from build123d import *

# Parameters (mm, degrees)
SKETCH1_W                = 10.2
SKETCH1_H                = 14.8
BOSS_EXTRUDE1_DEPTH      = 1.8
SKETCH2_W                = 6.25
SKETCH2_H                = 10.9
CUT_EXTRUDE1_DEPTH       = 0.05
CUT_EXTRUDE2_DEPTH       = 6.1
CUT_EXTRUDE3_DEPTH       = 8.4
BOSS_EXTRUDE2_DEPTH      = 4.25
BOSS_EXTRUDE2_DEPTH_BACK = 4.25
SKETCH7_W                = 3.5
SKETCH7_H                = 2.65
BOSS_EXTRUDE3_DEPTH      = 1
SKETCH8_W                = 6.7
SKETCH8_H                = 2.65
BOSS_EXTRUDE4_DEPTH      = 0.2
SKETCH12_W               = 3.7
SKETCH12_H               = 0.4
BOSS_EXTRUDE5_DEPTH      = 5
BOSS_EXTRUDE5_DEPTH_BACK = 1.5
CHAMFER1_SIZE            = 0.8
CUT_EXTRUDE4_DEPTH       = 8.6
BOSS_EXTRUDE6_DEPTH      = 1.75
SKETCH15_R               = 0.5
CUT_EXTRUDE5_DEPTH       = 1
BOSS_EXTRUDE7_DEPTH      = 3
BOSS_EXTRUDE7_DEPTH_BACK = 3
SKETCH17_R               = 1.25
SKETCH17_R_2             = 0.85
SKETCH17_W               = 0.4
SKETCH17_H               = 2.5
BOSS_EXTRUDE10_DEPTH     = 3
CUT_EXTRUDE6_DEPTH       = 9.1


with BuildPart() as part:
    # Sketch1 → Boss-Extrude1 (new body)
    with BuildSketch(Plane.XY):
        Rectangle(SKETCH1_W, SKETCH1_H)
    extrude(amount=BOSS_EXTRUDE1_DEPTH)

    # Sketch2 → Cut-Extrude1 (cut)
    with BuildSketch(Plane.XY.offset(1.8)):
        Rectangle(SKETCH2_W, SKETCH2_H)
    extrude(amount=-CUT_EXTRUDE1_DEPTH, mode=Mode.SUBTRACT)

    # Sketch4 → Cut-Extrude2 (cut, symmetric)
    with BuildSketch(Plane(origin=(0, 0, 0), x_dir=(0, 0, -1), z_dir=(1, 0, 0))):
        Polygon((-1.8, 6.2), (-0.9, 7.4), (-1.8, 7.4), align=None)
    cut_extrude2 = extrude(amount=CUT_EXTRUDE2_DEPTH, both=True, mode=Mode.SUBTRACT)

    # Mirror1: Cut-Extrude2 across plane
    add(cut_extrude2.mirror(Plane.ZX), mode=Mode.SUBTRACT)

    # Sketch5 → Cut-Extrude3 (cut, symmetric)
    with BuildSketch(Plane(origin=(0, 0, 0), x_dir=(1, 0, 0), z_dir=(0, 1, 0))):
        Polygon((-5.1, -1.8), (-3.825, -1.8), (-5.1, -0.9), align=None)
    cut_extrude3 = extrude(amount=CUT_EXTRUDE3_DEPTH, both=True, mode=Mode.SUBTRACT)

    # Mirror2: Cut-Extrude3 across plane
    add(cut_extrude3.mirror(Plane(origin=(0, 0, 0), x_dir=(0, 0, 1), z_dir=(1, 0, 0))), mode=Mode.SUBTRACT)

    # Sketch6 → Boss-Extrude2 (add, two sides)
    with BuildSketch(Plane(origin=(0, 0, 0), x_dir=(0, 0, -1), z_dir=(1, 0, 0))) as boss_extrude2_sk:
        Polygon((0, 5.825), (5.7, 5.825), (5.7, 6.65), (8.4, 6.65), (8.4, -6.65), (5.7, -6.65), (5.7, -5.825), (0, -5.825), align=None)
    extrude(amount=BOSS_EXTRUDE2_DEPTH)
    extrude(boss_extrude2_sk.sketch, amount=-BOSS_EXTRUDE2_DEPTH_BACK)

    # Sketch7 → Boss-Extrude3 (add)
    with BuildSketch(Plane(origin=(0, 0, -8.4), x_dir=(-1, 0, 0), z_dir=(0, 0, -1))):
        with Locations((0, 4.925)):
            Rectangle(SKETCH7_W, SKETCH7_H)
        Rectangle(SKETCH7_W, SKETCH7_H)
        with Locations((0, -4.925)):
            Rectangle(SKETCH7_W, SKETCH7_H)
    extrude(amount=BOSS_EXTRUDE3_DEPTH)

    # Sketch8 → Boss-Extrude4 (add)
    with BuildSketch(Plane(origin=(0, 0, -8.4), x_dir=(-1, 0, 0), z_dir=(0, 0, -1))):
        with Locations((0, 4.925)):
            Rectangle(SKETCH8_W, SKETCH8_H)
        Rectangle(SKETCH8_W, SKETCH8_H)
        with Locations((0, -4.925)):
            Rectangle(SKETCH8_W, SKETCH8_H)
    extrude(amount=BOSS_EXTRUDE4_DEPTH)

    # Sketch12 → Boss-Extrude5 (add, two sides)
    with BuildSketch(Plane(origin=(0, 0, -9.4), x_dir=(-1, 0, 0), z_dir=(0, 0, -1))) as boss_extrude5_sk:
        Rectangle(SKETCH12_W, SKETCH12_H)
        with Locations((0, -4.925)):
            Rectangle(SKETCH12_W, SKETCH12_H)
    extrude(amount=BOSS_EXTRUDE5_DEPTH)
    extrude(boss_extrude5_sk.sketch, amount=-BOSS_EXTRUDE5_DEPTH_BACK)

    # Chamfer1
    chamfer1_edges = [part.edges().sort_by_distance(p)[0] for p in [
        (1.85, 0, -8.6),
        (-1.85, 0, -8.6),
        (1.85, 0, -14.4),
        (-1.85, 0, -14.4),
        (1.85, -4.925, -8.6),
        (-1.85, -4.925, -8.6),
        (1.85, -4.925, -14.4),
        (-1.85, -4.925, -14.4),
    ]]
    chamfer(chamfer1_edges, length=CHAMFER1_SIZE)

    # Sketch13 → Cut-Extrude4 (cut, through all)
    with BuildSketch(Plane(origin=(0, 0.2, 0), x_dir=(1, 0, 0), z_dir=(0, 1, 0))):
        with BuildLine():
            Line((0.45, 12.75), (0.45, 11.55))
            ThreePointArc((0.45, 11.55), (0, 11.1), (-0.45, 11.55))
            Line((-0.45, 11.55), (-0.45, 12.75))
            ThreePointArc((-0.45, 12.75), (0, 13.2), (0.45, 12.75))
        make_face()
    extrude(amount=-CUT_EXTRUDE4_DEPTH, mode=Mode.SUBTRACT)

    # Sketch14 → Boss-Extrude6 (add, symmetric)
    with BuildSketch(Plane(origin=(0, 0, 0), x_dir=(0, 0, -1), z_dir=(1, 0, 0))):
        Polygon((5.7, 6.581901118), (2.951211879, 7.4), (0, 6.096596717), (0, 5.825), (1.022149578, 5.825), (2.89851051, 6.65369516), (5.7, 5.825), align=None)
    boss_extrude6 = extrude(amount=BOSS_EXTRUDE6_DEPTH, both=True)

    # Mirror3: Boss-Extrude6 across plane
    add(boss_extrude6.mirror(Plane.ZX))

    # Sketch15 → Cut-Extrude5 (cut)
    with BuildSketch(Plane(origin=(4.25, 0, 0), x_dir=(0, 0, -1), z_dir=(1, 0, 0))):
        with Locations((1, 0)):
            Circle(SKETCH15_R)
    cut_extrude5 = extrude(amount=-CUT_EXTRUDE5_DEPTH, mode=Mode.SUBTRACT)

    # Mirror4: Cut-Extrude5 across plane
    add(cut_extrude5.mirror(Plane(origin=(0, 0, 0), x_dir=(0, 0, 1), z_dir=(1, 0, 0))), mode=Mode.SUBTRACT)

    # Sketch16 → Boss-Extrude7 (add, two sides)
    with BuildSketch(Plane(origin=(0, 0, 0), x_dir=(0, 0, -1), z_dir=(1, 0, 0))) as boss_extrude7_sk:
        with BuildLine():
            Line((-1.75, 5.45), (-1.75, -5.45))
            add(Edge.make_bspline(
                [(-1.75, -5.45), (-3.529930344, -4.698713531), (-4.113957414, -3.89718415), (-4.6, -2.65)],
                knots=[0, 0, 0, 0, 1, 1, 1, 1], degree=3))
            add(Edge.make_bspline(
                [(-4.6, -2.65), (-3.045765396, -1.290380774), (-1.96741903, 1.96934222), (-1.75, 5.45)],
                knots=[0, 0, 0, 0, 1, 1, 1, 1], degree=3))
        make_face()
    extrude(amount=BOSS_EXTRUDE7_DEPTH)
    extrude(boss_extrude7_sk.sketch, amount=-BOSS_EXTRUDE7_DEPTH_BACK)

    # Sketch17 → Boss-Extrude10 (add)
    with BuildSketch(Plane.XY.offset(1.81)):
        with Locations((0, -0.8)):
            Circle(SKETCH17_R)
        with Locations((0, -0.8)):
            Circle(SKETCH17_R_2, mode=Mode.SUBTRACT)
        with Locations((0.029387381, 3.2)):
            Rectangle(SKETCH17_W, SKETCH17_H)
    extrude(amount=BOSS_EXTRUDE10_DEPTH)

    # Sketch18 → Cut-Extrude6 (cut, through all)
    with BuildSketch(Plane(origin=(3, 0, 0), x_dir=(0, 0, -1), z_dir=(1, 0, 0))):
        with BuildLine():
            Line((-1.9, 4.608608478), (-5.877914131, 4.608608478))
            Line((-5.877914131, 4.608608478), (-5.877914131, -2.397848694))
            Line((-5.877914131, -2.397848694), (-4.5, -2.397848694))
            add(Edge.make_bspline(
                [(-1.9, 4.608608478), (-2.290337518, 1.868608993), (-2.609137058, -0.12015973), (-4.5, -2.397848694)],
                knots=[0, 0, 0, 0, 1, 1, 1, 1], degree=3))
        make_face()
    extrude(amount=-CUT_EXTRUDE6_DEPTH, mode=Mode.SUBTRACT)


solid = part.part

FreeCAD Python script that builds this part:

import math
import FreeCAD as App
import Part
import Sketcher
from FreeCAD import Vector
Q = App.Units.Quantity


def edges_at(feature, points):
    """Names of the edges that pass closest to the given points."""
    edges = feature.Shape.Edges
    near = lambda p: min(range(len(edges)), key=lambda i: edges[i].distToShape(Part.Vertex(*p))[0])
    return sorted({f"Edge{near(p) + 1}" for p in points})

doc = App.newDocument("Part")
body = doc.addObject("PartDesign::Body", "Body")

# Sketch on XY plane
sketch1 = body.newObject("Sketcher::SketchObject", "Sketch")
sketch1.AttachmentSupport = (doc.getObject("XY_Plane"), [""])
sketch1.MapMode = "FlatFace"
sketch1.addGeometry([
    Part.LineSegment(Vector(-5.1, 7.4, 0), Vector(-5.1, -7.4, 0)),
    Part.LineSegment(Vector(-5.1, -7.4, 0), Vector(5.1, -7.4, 0)),
    Part.LineSegment(Vector(5.1, -7.4, 0), Vector(5.1, 7.4, 0)),
    Part.LineSegment(Vector(5.1, 7.4, 0), Vector(-5.1, 7.4, 0)),
], False)
sketch1.addConstraint([
    Sketcher.Constraint("Coincident", 0, 2, 1, 1),
    Sketcher.Constraint("Coincident", 1, 2, 2, 1),
    Sketcher.Constraint("Coincident", 2, 2, 3, 1),
    Sketcher.Constraint("Coincident", 3, 2, 0, 1),
    Sketcher.Constraint("Vertical", 0),
    Sketcher.Constraint("Horizontal", 1),
    Sketcher.Constraint("Vertical", 2),
    Sketcher.Constraint("Horizontal", 3),
    Sketcher.Constraint("Symmetric", 0, 2, 2, 2, -1, 1),
    Sketcher.Constraint("DistanceX", 1, 1, 1, 2, Q("10.2 mm")),
    Sketcher.Constraint("DistanceY", 0, 2, 0, 1, Q("14.8 mm")),
])
pad1 = body.newObject("PartDesign::Pad", "Pad")
pad1.Profile = sketch1
pad1.Length = 1.8

# Sketch on XY plane
sketch2 = body.newObject("Sketcher::SketchObject", "Sketch001")
sketch2.AttachmentSupport = (doc.getObject("XY_Plane"), [""])
sketch2.MapMode = "FlatFace"
sketch2.AttachmentOffset = App.Placement(Vector(0, 0, 1.8), App.Rotation())
sketch2.addGeometry([
    Part.LineSegment(Vector(-3.125, 5.45, 0), Vector(-3.125, -5.45, 0)),
    Part.LineSegment(Vector(-3.125, -5.45, 0), Vector(3.125, -5.45, 0)),
    Part.LineSegment(Vector(3.125, -5.45, 0), Vector(3.125, 5.45, 0)),
    Part.LineSegment(Vector(3.125, 5.45, 0), Vector(-3.125, 5.45, 0)),
], False)
sketch2.addConstraint([
    Sketcher.Constraint("Coincident", 0, 2, 1, 1),
    Sketcher.Constraint("Coincident", 1, 2, 2, 1),
    Sketcher.Constraint("Coincident", 2, 2, 3, 1),
    Sketcher.Constraint("Coincident", 3, 2, 0, 1),
    Sketcher.Constraint("Vertical", 0),
    Sketcher.Constraint("Horizontal", 1),
    Sketcher.Constraint("Vertical", 2),
    Sketcher.Constraint("Horizontal", 3),
    Sketcher.Constraint("Symmetric", 0, 2, 2, 2, -1, 1),
    Sketcher.Constraint("DistanceY", 0, 2, 0, 1, Q("10.9 mm")),
    Sketcher.Constraint("DistanceX", 1, 1, 1, 2, Q("6.25 mm")),
])
pocket1 = body.newObject("PartDesign::Pocket", "Pocket")
pocket1.Profile = sketch2
pocket1.Length = 0.05

# Sketch on YZ plane
sketch3 = body.newObject("Sketcher::SketchObject", "Sketch002")
sketch3.AttachmentSupport = (doc.getObject("YZ_Plane"), [""])
sketch3.MapMode = "FlatFace"
sketch3.addGeometry([
    Part.LineSegment(Vector(6.2, 1.8, 0), Vector(7.4, 0.9, 0)),
    Part.LineSegment(Vector(7.4, 0.9, 0), Vector(7.4, 1.8, 0)),
    Part.LineSegment(Vector(7.4, 1.8, 0), Vector(6.2, 1.8, 0)),
], False)
sketch3.addConstraint([
    Sketcher.Constraint("Coincident", 0, 2, 1, 1),
    Sketcher.Constraint("Coincident", 1, 2, 2, 1),
    Sketcher.Constraint("Coincident", 2, 2, 0, 1),
    Sketcher.Constraint("Vertical", 1),
    Sketcher.Constraint("Horizontal", 2),
    Sketcher.Constraint("DistanceX", 2, 2, 2, 1, Q("1.2 mm")),
    Sketcher.Constraint("DistanceY", 1, 1, 1, 2, Q("0.9 mm")),
    Sketcher.Constraint("DistanceX", -1, 1, 0, 2, Q("7.4 mm")),
    Sketcher.Constraint("DistanceY", -1, 1, 0, 2, Q("0.9 mm")),
])
pocket2 = body.newObject("PartDesign::Pocket", "Pocket001")
pocket2.Profile = sketch3
pocket2.Length = 12.2
pocket2.Midplane = True
doc.recompute()

mirrored = body.newObject("PartDesign::Mirrored", "Mirrored")
mirrored.Originals = [pocket2]
mirrored.MirrorPlane = (doc.getObject("XZ_Plane"), [""])
body.Tip = mirrored

# Sketch on XZ plane
sketch4 = body.newObject("Sketcher::SketchObject", "Sketch003")
sketch4.AttachmentSupport = (doc.getObject("XZ_Plane"), [""])
sketch4.MapMode = "FlatFace"
sketch4.addGeometry([
    Part.LineSegment(Vector(-5.1, 1.8, 0), Vector(-3.825, 1.8, 0)),
    Part.LineSegment(Vector(-3.825, 1.8, 0), Vector(-5.1, 0.9, 0)),
    Part.LineSegment(Vector(-5.1, 0.9, 0), Vector(-5.1, 1.8, 0)),
], False)
sketch4.addConstraint([
    Sketcher.Constraint("Coincident", 0, 2, 1, 1),
    Sketcher.Constraint("Coincident", 1, 2, 2, 1),
    Sketcher.Constraint("Coincident", 2, 2, 0, 1),
    Sketcher.Constraint("Horizontal", 0),
    Sketcher.Constraint("Vertical", 2),
    Sketcher.Constraint("DistanceY", 2, 1, 2, 2, Q("0.9 mm")),
    Sketcher.Constraint("DistanceY", -1, 1, 0, 2, Q("1.8 mm")),
    Sketcher.Constraint("DistanceX", 1, 2, -1, 1, Q("5.1 mm")),
    Sketcher.Constraint("DistanceX", 0, 1, 0, 2, Q("1.275 mm")),
])
pocket3 = body.newObject("PartDesign::Pocket", "Pocket002")
pocket3.Profile = sketch4
pocket3.Length = 16.8
pocket3.Midplane = True
doc.recompute()

mirrored2 = body.newObject("PartDesign::Mirrored", "Mirrored001")
mirrored2.Originals = [pocket3]
mirrored2.MirrorPlane = (doc.getObject("YZ_Plane"), [""])
body.Tip = mirrored2

# Sketch on YZ plane
sketch5 = body.newObject("Sketcher::SketchObject", "Sketch004")
sketch5.AttachmentSupport = (doc.getObject("YZ_Plane"), [""])
sketch5.MapMode = "FlatFace"
sketch5.addGeometry([
    Part.LineSegment(Vector(5.825, -5.7, 0), Vector(5.825, 0, 0)),  # 0
    Part.LineSegment(Vector(5.825, 0, 0), Vector(-5.825, 0, 0)),  # 1
    Part.LineSegment(Vector(-5.825, 0, 0), Vector(-5.825, -5.7, 0)),  # 2
    Part.LineSegment(Vector(-5.825, -5.7, 0), Vector(-6.65, -5.7, 0)),  # 3
    Part.LineSegment(Vector(-6.65, -5.7, 0), Vector(-6.65, -8.4, 0)),  # 4
    Part.LineSegment(Vector(-6.65, -8.4, 0), Vector(6.65, -8.4, 0)),  # 5
    Part.LineSegment(Vector(6.65, -8.4, 0), Vector(6.65, -5.7, 0)),  # 6
    Part.LineSegment(Vector(6.65, -5.7, 0), Vector(5.825, -5.7, 0)),  # 7
], False)
sketch5.addConstraint([
    Sketcher.Constraint("Coincident", 0, 2, 1, 1),
    Sketcher.Constraint("Coincident", 1, 2, 2, 1),
    Sketcher.Constraint("Coincident", 2, 2, 3, 1),
    Sketcher.Constraint("Coincident", 3, 2, 4, 1),
    Sketcher.Constraint("Coincident", 4, 2, 5, 1),
    Sketcher.Constraint("Coincident", 5, 2, 6, 1),
    Sketcher.Constraint("Coincident", 6, 2, 7, 1),
    Sketcher.Constraint("Coincident", 7, 2, 0, 1),
    Sketcher.Constraint("Vertical", 0),
    Sketcher.Constraint("Horizontal", 1),
    Sketcher.Constraint("Vertical", 2),
    Sketcher.Constraint("Horizontal", 3),
    Sketcher.Constraint("Vertical", 4),
    Sketcher.Constraint("Horizontal", 5),
    Sketcher.Constraint("Vertical", 6),
    Sketcher.Constraint("Horizontal", 7),
    Sketcher.Constraint("Symmetric", 0, 2, 1, 2, -1, 1),
    Sketcher.Constraint("Symmetric", 3, 2, 6, 2, -2),
    Sketcher.Constraint("DistanceX", 5, 1, 5, 2, Q("13.3 mm")),
    Sketcher.Constraint("DistanceY", 0, 1, 0, 2, Q("5.7 mm")),
    Sketcher.Constraint("DistanceY", 4, 2, 4, 1, Q("2.7 mm")),
    Sketcher.Constraint("DistanceX", 1, 2, 1, 1, Q("11.65 mm")),
])
pad2 = body.newObject("PartDesign::Pad", "Pad001")
pad2.Profile = sketch5
pad2.Type = "TwoLengths"
pad2.Length = 4.25
pad2.Length2 = 4.25

# Sketch on XY plane
sketch6 = body.newObject("Sketcher::SketchObject", "Sketch005")
sketch6.AttachmentSupport = (doc.getObject("XY_Plane"), [""])
sketch6.MapMode = "FlatFace"
sketch6.AttachmentOffset = App.Placement(Vector(0, 0, -8.4), App.Rotation())
sketch6.addGeometry([
    Part.LineSegment(Vector(1.75, 6.25, 0), Vector(1.75, 3.6, 0)),  # 0
    Part.LineSegment(Vector(1.75, 3.6, 0), Vector(-1.75, 3.6, 0)),  # 1
    Part.LineSegment(Vector(-1.75, 3.6, 0), Vector(-1.75, 6.25, 0)),  # 2
    Part.LineSegment(Vector(-1.75, 6.25, 0), Vector(1.75, 6.25, 0)),  # 3
    Part.LineSegment(Vector(1.75, 1.325, 0), Vector(1.75, -1.325, 0)),  # 4
    Part.LineSegment(Vector(1.75, -1.325, 0), Vector(-1.75, -1.325, 0)),  # 5
    Part.LineSegment(Vector(-1.75, -1.325, 0), Vector(-1.75, 1.325, 0)),  # 6
    Part.LineSegment(Vector(-1.75, 1.325, 0), Vector(1.75, 1.325, 0)),  # 7
    Part.LineSegment(Vector(1.75, -3.6, 0), Vector(1.75, -6.25, 0)),  # 8
    Part.LineSegment(Vector(1.75, -6.25, 0), Vector(-1.75, -6.25, 0)),  # 9
    Part.LineSegment(Vector(-1.75, -6.25, 0), Vector(-1.75, -3.6, 0)),  # 10
    Part.LineSegment(Vector(-1.75, -3.6, 0), Vector(1.75, -3.6, 0)),  # 11
], False)
sketch6.addConstraint([
    Sketcher.Constraint("Coincident", 0, 2, 1, 1),
    Sketcher.Constraint("Coincident", 1, 2, 2, 1),
    Sketcher.Constraint("Coincident", 2, 2, 3, 1),
    Sketcher.Constraint("Coincident", 3, 2, 0, 1),
    Sketcher.Constraint("Coincident", 4, 2, 5, 1),
    Sketcher.Constraint("Coincident", 5, 2, 6, 1),
    Sketcher.Constraint("Coincident", 6, 2, 7, 1),
    Sketcher.Constraint("Coincident", 7, 2, 4, 1),
    Sketcher.Constraint("Coincident", 8, 2, 9, 1),
    Sketcher.Constraint("Coincident", 9, 2, 10, 1),
    Sketcher.Constraint("Coincident", 10, 2, 11, 1),
    Sketcher.Constraint("Coincident", 11, 2, 8, 1),
    Sketcher.Constraint("Vertical", 0),
    Sketcher.Constraint("Horizontal", 1),
    Sketcher.Constraint("Vertical", 2),
    Sketcher.Constraint("Horizontal", 3),
    Sketcher.Constraint("Vertical", 4),
    Sketcher.Constraint("Horizontal", 5),
    Sketcher.Constraint("Vertical", 6),
    Sketcher.Constraint("Horizontal", 7),
    Sketcher.Constraint("Vertical", 8),
    Sketcher.Constraint("Horizontal", 9),
    Sketcher.Constraint("Vertical", 10),
    Sketcher.Constraint("Horizontal", 11),
    Sketcher.Constraint("Symmetric", 4, 2, 6, 2, -1, 1),
    Sketcher.Constraint("Symmetric", 2, 2, 8, 2, -1, 1),
    Sketcher.Constraint("Symmetric", 0, 2, 10, 2, -1, 1),
    Sketcher.Constraint("Vertical", 3, 2, 4, 2),
    Sketcher.Constraint("Vertical", 2, 2, 5, 2),
    Sketcher.Constraint("Equal", 2, 4),
    Sketcher.Constraint("DistanceX", 1, 2, 1, 1, Q("3.5 mm")),
    Sketcher.Constraint("DistanceY", 0, 2, 0, 1, Q("2.65 mm")),
    Sketcher.Constraint("DistanceY", -1, 1, 0, 2, Q("3.6 mm")),
])
pad3 = body.newObject("PartDesign::Pad", "Pad002")
pad3.Profile = sketch6
pad3.Length = 1
pad3.Reversed = True

# Sketch on XY plane
sketch7 = body.newObject("Sketcher::SketchObject", "Sketch006")
sketch7.AttachmentSupport = (doc.getObject("XY_Plane"), [""])
sketch7.MapMode = "FlatFace"
sketch7.AttachmentOffset = App.Placement(Vector(0, 0, -8.4), App.Rotation())
sketch7.addGeometry([
    Part.LineSegment(Vector(3.35, 6.25, 0), Vector(3.35, 3.6, 0)),  # 0
    Part.LineSegment(Vector(3.35, 3.6, 0), Vector(-3.35, 3.6, 0)),  # 1
    Part.LineSegment(Vector(-3.35, 3.6, 0), Vector(-3.35, 6.25, 0)),  # 2
    Part.LineSegment(Vector(-3.35, 6.25, 0), Vector(3.35, 6.25, 0)),  # 3
    Part.LineSegment(Vector(3.35, 1.325, 0), Vector(3.35, -1.325, 0)),  # 4
    Part.LineSegment(Vector(3.35, -1.325, 0), Vector(-3.35, -1.325, 0)),  # 5
    Part.LineSegment(Vector(-3.35, -1.325, 0), Vector(-3.35, 1.325, 0)),  # 6
    Part.LineSegment(Vector(-3.35, 1.325, 0), Vector(3.35, 1.325, 0)),  # 7
    Part.LineSegment(Vector(3.35, -3.6, 0), Vector(3.35, -6.25, 0)),  # 8
    Part.LineSegment(Vector(3.35, -6.25, 0), Vector(-3.35, -6.25, 0)),  # 9
    Part.LineSegment(Vector(-3.35, -6.25, 0), Vector(-3.35, -3.6, 0)),  # 10
    Part.LineSegment(Vector(-3.35, -3.6, 0), Vector(3.35, -3.6, 0)),  # 11
], False)
sketch7.addConstraint([
    Sketcher.Constraint("Coincident", 0, 2, 1, 1),
    Sketcher.Constraint("Coincident", 1, 2, 2, 1),
    Sketcher.Constraint("Coincident", 2, 2, 3, 1),
    Sketcher.Constraint("Coincident", 3, 2, 0, 1),
    Sketcher.Constraint("Coincident", 4, 2, 5, 1),
    Sketcher.Constraint("Coincident", 5, 2, 6, 1),
    Sketcher.Constraint("Coincident", 6, 2, 7, 1),
    Sketcher.Constraint("Coincident", 7, 2, 4, 1),
    Sketcher.Constraint("Coincident", 8, 2, 9, 1),
    Sketcher.Constraint("Coincident", 9, 2, 10, 1),
    Sketcher.Constraint("Coincident", 10, 2, 11, 1),
    Sketcher.Constraint("Coincident", 11, 2, 8, 1),
    Sketcher.Constraint("Vertical", 0),
    Sketcher.Constraint("Horizontal", 1),
    Sketcher.Constraint("Vertical", 2),
    Sketcher.Constraint("Horizontal", 3),
    Sketcher.Constraint("Vertical", 4),
    Sketcher.Constraint("Horizontal", 5),
    Sketcher.Constraint("Vertical", 6),
    Sketcher.Constraint("Horizontal", 7),
    Sketcher.Constraint("Vertical", 8),
    Sketcher.Constraint("Horizontal", 9),
    Sketcher.Constraint("Vertical", 10),
    Sketcher.Constraint("Horizontal", 11),
    Sketcher.Constraint("Symmetric", 4, 2, 6, 2, -1, 1),
    Sketcher.Constraint("Symmetric", 2, 2, 8, 2, -1, 1),
    Sketcher.Constraint("Symmetric", 0, 2, 10, 2, -1, 1),
    Sketcher.Constraint("Vertical", 3, 2, 4, 2),
    Sketcher.Constraint("Vertical", 2, 2, 5, 2),
    Sketcher.Constraint("Equal", 2, 4),
    Sketcher.Constraint("DistanceX", 1, 2, 1, 1, Q("6.7 mm")),
    Sketcher.Constraint("DistanceY", 0, 2, 0, 1, Q("2.65 mm")),
    Sketcher.Constraint("DistanceY", -1, 1, 0, 2, Q("3.6 mm")),
])
pad4 = body.newObject("PartDesign::Pad", "Pad003")
pad4.Profile = sketch7
pad4.Length = 0.2
pad4.Reversed = True

# Sketch on XY plane
sketch8 = body.newObject("Sketcher::SketchObject", "Sketch007")
sketch8.AttachmentSupport = (doc.getObject("XY_Plane"), [""])
sketch8.MapMode = "FlatFace"
sketch8.AttachmentOffset = App.Placement(Vector(0, 0, -9.4), App.Rotation())
sketch8.addGeometry([
    Part.LineSegment(Vector(1.85, 0.2, 0), Vector(1.85, -0.2, 0)),  # 0
    Part.LineSegment(Vector(1.85, -0.2, 0), Vector(-1.85, -0.2, 0)),  # 1
    Part.LineSegment(Vector(-1.85, -0.2, 0), Vector(-1.85, 0.2, 0)),  # 2
    Part.LineSegment(Vector(-1.85, 0.2, 0), Vector(1.85, 0.2, 0)),  # 3
    Part.LineSegment(Vector(1.85, -4.725, 0), Vector(1.85, -5.125, 0)),  # 4
    Part.LineSegment(Vector(1.85, -5.125, 0), Vector(-1.85, -5.125, 0)),  # 5
    Part.LineSegment(Vector(-1.85, -5.125, 0), Vector(-1.85, -4.725, 0)),  # 6
    Part.LineSegment(Vector(-1.85, -4.725, 0), Vector(1.85, -4.725, 0)),  # 7
], False)
sketch8.addConstraint([
    Sketcher.Constraint("Coincident", 0, 2, 1, 1),
    Sketcher.Constraint("Coincident", 1, 2, 2, 1),
    Sketcher.Constraint("Coincident", 2, 2, 3, 1),
    Sketcher.Constraint("Coincident", 3, 2, 0, 1),
    Sketcher.Constraint("Coincident", 4, 2, 5, 1),
    Sketcher.Constraint("Coincident", 5, 2, 6, 1),
    Sketcher.Constraint("Coincident", 6, 2, 7, 1),
    Sketcher.Constraint("Coincident", 7, 2, 4, 1),
    Sketcher.Constraint("Vertical", 0),
    Sketcher.Constraint("Horizontal", 1),
    Sketcher.Constraint("Vertical", 2),
    Sketcher.Constraint("Horizontal", 3),
    Sketcher.Constraint("Vertical", 4),
    Sketcher.Constraint("Horizontal", 5),
    Sketcher.Constraint("Vertical", 6),
    Sketcher.Constraint("Horizontal", 7),
    Sketcher.Constraint("Symmetric", 0, 2, 2, 2, -1, 1),
    Sketcher.Constraint("Vertical", 3, 2, 4, 2),
    Sketcher.Constraint("Vertical", 2, 2, 5, 2),
    Sketcher.Constraint("Equal", 2, 4),
    Sketcher.Constraint("DistanceX", 1, 2, 1, 1, Q("3.7 mm")),
    Sketcher.Constraint("DistanceY", 0, 2, 0, 1, Q("0.4 mm")),
    Sketcher.Constraint("DistanceY", 4, 2, -1, 1, Q("5.125 mm")),
])
pad5 = body.newObject("PartDesign::Pad", "Pad004")
pad5.Profile = sketch8
pad5.Type = "TwoLengths"
pad5.Length = 5
pad5.Length2 = 1.5
pad5.Reversed = True
doc.recompute()

chamfer = body.newObject("PartDesign::Chamfer", "Chamfer")
chamfer.Base = (pad5, edges_at(pad5, [
    (1.85, 0, -8.6),
    (-1.85, 0, -8.6),
    (1.85, 0, -14.4),
    (-1.85, 0, -14.4),
    (1.85, -4.925, -8.6),
    (-1.85, -4.925, -8.6),
    (1.85, -4.925, -14.4),
    (-1.85, -4.925, -14.4),
]))
chamfer.Size = 0.8

# Sketch on XZ plane
sketch9 = body.newObject("Sketcher::SketchObject", "Sketch008")
sketch9.AttachmentSupport = (doc.getObject("XZ_Plane"), [""])
sketch9.MapMode = "FlatFace"
sketch9.AttachmentOffset = App.Placement(Vector(0, 0, -0.2), App.Rotation())
sketch9.addGeometry([
    Part.LineSegment(Vector(0.45, -11.55, 0), Vector(0.45, -12.75, 0)),
    Part.ArcOfCircle(Part.Circle(Vector(0, -12.75, 0), Vector(0, 0, 1), 0.45), math.radians(180), math.radians(360)),
    Part.LineSegment(Vector(-0.45, -12.75, 0), Vector(-0.45, -11.55, 0)),
    Part.ArcOfCircle(Part.Circle(Vector(0, -11.55, 0), Vector(0, 0, 1), 0.45), math.radians(0), math.radians(180)),
], False)
sketch9.addConstraint([
    Sketcher.Constraint("Tangent", 0, 2, 1, 2),
    Sketcher.Constraint("Tangent", 1, 1, 2, 1),
    Sketcher.Constraint("Tangent", 2, 2, 3, 2),
    Sketcher.Constraint("Tangent", 3, 1, 0, 1),
    Sketcher.Constraint("Vertical", 0),
    Sketcher.Constraint("Vertical", 2),
    Sketcher.Constraint("PointOnObject", 1, 3, -2),
    Sketcher.Constraint("Radius", 1, Q("0.45 mm")),
    Sketcher.Constraint("DistanceY", 0, 2, 0, 1, Q("1.2 mm")),
    Sketcher.Constraint("DistanceY", 1, 3, -1, 1, Q("12.75 mm")),
])
pocket4 = body.newObject("PartDesign::Pocket", "Pocket003")
pocket4.Profile = sketch9
pocket4.Type = "ThroughAll"
pocket4.Reversed = True

# Sketch on YZ plane
sketch10 = body.newObject("Sketcher::SketchObject", "Sketch009")
sketch10.AttachmentSupport = (doc.getObject("YZ_Plane"), [""])
sketch10.MapMode = "FlatFace"
sketch10.addGeometry([
    Part.LineSegment(Vector(6.581901, -5.7, 0), Vector(7.4, -2.951212, 0)),  # 0
    Part.LineSegment(Vector(7.4, -2.951212, 0), Vector(6.096597, 0, 0)),  # 1
    Part.LineSegment(Vector(6.096597, 0, 0), Vector(5.825, 0, 0)),  # 2
    Part.LineSegment(Vector(5.825, 0, 0), Vector(5.825, -1.02215, 0)),  # 3
    Part.LineSegment(Vector(5.825, -1.02215, 0), Vector(6.653695, -2.898511, 0)),  # 4
    Part.LineSegment(Vector(6.653695, -2.898511, 0), Vector(5.825, -5.7, 0)),  # 5
    Part.LineSegment(Vector(5.825, -5.7, 0), Vector(6.581901, -5.7, 0)),  # 6
], False)
sketch10.addConstraint([
    Sketcher.Constraint("Coincident", 0, 2, 1, 1),
    Sketcher.Constraint("Coincident", 1, 2, 2, 1),
    Sketcher.Constraint("Coincident", 2, 2, 3, 1),
    Sketcher.Constraint("Coincident", 3, 2, 4, 1),
    Sketcher.Constraint("Coincident", 4, 2, 5, 1),
    Sketcher.Constraint("Coincident", 5, 2, 6, 1),
    Sketcher.Constraint("Coincident", 6, 2, 0, 1),
    Sketcher.Constraint("Horizontal", 2),
    Sketcher.Constraint("Vertical", 3),
    Sketcher.Constraint("Horizontal", 6),
    Sketcher.Constraint("PointOnObject", 1, 2, -1),
    Sketcher.Constraint("Parallel", 1, 4),
    Sketcher.Constraint("Vertical", 3, 2, 5, 2),
    Sketcher.Constraint("DistanceX", -1, 1, 0, 2, Q("7.4 mm")),
    Sketcher.Constraint("DistanceY", 5, 2, -1, 1, Q("5.7 mm")),
    Sketcher.Constraint("DistanceX", 6, 1, 6, 2, Q("0.756901 mm")),
    Sketcher.Constraint("DistanceX", -1, 1, 2, 2, Q("5.825 mm")),
    Sketcher.Constraint("DistanceY", 3, 2, 3, 1, Q("1.02215 mm")),
    Sketcher.Constraint("DistanceY", 0, 2, 4, 2, Q("0.052701 mm")),
    Sketcher.Constraint("DistanceX", 1, 2, 4, 2, Q("0.557098 mm")),
    Sketcher.Constraint("Distance", 4, Q("2.051211 mm")),
])
pad6 = body.newObject("PartDesign::Pad", "Pad005")
pad6.Profile = sketch10
pad6.Length = 3.5
pad6.Midplane = True
doc.recompute()

mirrored3 = body.newObject("PartDesign::Mirrored", "Mirrored002")
mirrored3.Originals = [pad6]
mirrored3.MirrorPlane = (doc.getObject("XZ_Plane"), [""])
body.Tip = mirrored3

# Sketch on YZ plane
sketch11 = body.newObject("Sketcher::SketchObject", "Sketch010")
sketch11.AttachmentSupport = (doc.getObject("YZ_Plane"), [""])
sketch11.MapMode = "FlatFace"
sketch11.AttachmentOffset = App.Placement(Vector(0, 0, 4.25), App.Rotation())
sketch11.addGeometry(Part.Circle(Vector(0, -1, 0), Vector(0, 0, 1), 0.5), False)
sketch11.addConstraint([
    Sketcher.Constraint("PointOnObject", 0, 3, -2),
    Sketcher.Constraint("Diameter", 0, Q("1 mm")),
    Sketcher.Constraint("DistanceY", 0, 3, -1, 1, Q("1 mm")),
])
pocket5 = body.newObject("PartDesign::Pocket", "Pocket004")
pocket5.Profile = sketch11
pocket5.Length = 1
doc.recompute()

mirrored4 = body.newObject("PartDesign::Mirrored", "Mirrored003")
mirrored4.Originals = [pocket5]
mirrored4.MirrorPlane = (doc.getObject("YZ_Plane"), [""])
body.Tip = mirrored4

# Sketch on YZ plane
sketch12 = body.newObject("Sketcher::SketchObject", "Sketch011")
sketch12.AttachmentSupport = (doc.getObject("YZ_Plane"), [""])
sketch12.MapMode = "FlatFace"
sketch12.addGeometry([
    Part.LineSegment(Vector(-5.45, 1.75, 0), Vector(5.45, 1.75, 0)),
    Part.BSplineCurve([Vector(-2.65, 4.6, 0), Vector(-1.290381, 3.045765, 0), Vector(1.969342, 1.967419, 0), Vector(5.45, 1.75, 0)], [4, 4], [0, 1], False, 3, [1, 1, 1, 1], False),
    Part.BSplineCurve([Vector(-5.45, 1.75, 0), Vector(-4.698714, 3.52993, 0), Vector(-3.897184, 4.113957, 0), Vector(-2.65, 4.6, 0)], [4, 4], [0, 1], False, 3, [1, 1, 1, 1], False),
], False)
sketch12.addConstraint([
    Sketcher.Constraint("Block", 1),
    Sketcher.Constraint("Block", 2),
    Sketcher.Constraint("Coincident", 0, 2, 1, 2),
    Sketcher.Constraint("Coincident", 2, 1, 0, 1),
])
pad7 = body.newObject("PartDesign::Pad", "Pad006")
pad7.Profile = sketch12
pad7.Type = "TwoLengths"
pad7.Length = 3
pad7.Length2 = 3

# Sketch on XY plane
sketch13 = body.newObject("Sketcher::SketchObject", "Sketch012")
sketch13.AttachmentSupport = (doc.getObject("XY_Plane"), [""])
sketch13.MapMode = "FlatFace"
sketch13.AttachmentOffset = App.Placement(Vector(0, 0, 1.81), App.Rotation())
sketch13.addGeometry([
    Part.Circle(Vector(0, -0.8, 0), Vector(0, 0, 1), 1.25),  # 0
    Part.Circle(Vector(0, -0.8, 0), Vector(0, 0, 1), 0.85),  # 1
    Part.LineSegment(Vector(-0.170613, 4.45, 0), Vector(-0.170613, 1.95, 0)),  # 2
    Part.LineSegment(Vector(-0.170613, 1.95, 0), Vector(0.229387, 1.95, 0)),  # 3
    Part.LineSegment(Vector(0.229387, 1.95, 0), Vector(0.229387, 4.45, 0)),  # 4
    Part.LineSegment(Vector(0.229387, 4.45, 0), Vector(-0.170613, 4.45, 0)),  # 5
], False)
sketch13.addConstraint([
    Sketcher.Constraint("Coincident", 2, 2, 3, 1),
    Sketcher.Constraint("Coincident", 3, 2, 4, 1),
    Sketcher.Constraint("Coincident", 4, 2, 5, 1),
    Sketcher.Constraint("Coincident", 5, 2, 2, 1),
    Sketcher.Constraint("Vertical", 2),
    Sketcher.Constraint("Horizontal", 3),
    Sketcher.Constraint("Vertical", 4),
    Sketcher.Constraint("Horizontal", 5),
    Sketcher.Constraint("Coincident", 1, 3, 0, 3),
    Sketcher.Constraint("PointOnObject", 0, 3, -2),
    Sketcher.Constraint("Diameter", 0, Q("2.5 mm")),
    Sketcher.Constraint("Diameter", 1, Q("1.7 mm")),
    Sketcher.Constraint("DistanceX", 3, 1, 3, 2, Q("0.4 mm")),
    Sketcher.Constraint("DistanceY", 2, 2, 2, 1, Q("2.5 mm")),
    Sketcher.Constraint("DistanceY", 0, 3, -1, 1, Q("0.8 mm")),
    Sketcher.Constraint("DistanceY", -1, 1, 2, 2, Q("1.95 mm")),
    Sketcher.Constraint("DistanceX", 2, 2, -1, 1, Q("0.170613 mm")),
])
pad8 = body.newObject("PartDesign::Pad", "Pad007")
pad8.Profile = sketch13
pad8.Length = 3

# Sketch on YZ plane
sketch14 = body.newObject("Sketcher::SketchObject", "Sketch013")
sketch14.AttachmentSupport = (doc.getObject("YZ_Plane"), [""])
sketch14.MapMode = "FlatFace"
sketch14.AttachmentOffset = App.Placement(Vector(0, 0, 3), App.Rotation())
sketch14.addGeometry([
    Part.LineSegment(Vector(4.608608, 1.9, 0), Vector(4.608608, 5.877914, 0)),
    Part.LineSegment(Vector(4.608608, 5.877914, 0), Vector(-2.397849, 5.877914, 0)),
    Part.LineSegment(Vector(-2.397849, 5.877914, 0), Vector(-2.397849, 4.5, 0)),
    Part.BSplineCurve([Vector(4.608608, 1.9, 0), Vector(1.868609, 2.290338, 0), Vector(-0.12016, 2.609137, 0), Vector(-2.397849, 4.5, 0)], [4, 4], [0, 1], False, 3, [1, 1, 1, 1], False),
], False)
sketch14.addConstraint([
    Sketcher.Constraint("Block", 3),
    Sketcher.Constraint("Coincident", 0, 2, 1, 1),
    Sketcher.Constraint("Coincident", 1, 2, 2, 1),
    Sketcher.Constraint("Coincident", 2, 2, 3, 2),
    Sketcher.Constraint("Coincident", 3, 1, 0, 1),
    Sketcher.Constraint("Vertical", 0),
    Sketcher.Constraint("Horizontal", 1),
    Sketcher.Constraint("Vertical", 2),
    Sketcher.Constraint("DistanceY", 0, 1, 0, 2, Q("3.977914 mm")),
])
pocket6 = body.newObject("PartDesign::Pocket", "Pocket005")
pocket6.Profile = sketch14
pocket6.Type = "ThroughAll"

doc.recompute()
